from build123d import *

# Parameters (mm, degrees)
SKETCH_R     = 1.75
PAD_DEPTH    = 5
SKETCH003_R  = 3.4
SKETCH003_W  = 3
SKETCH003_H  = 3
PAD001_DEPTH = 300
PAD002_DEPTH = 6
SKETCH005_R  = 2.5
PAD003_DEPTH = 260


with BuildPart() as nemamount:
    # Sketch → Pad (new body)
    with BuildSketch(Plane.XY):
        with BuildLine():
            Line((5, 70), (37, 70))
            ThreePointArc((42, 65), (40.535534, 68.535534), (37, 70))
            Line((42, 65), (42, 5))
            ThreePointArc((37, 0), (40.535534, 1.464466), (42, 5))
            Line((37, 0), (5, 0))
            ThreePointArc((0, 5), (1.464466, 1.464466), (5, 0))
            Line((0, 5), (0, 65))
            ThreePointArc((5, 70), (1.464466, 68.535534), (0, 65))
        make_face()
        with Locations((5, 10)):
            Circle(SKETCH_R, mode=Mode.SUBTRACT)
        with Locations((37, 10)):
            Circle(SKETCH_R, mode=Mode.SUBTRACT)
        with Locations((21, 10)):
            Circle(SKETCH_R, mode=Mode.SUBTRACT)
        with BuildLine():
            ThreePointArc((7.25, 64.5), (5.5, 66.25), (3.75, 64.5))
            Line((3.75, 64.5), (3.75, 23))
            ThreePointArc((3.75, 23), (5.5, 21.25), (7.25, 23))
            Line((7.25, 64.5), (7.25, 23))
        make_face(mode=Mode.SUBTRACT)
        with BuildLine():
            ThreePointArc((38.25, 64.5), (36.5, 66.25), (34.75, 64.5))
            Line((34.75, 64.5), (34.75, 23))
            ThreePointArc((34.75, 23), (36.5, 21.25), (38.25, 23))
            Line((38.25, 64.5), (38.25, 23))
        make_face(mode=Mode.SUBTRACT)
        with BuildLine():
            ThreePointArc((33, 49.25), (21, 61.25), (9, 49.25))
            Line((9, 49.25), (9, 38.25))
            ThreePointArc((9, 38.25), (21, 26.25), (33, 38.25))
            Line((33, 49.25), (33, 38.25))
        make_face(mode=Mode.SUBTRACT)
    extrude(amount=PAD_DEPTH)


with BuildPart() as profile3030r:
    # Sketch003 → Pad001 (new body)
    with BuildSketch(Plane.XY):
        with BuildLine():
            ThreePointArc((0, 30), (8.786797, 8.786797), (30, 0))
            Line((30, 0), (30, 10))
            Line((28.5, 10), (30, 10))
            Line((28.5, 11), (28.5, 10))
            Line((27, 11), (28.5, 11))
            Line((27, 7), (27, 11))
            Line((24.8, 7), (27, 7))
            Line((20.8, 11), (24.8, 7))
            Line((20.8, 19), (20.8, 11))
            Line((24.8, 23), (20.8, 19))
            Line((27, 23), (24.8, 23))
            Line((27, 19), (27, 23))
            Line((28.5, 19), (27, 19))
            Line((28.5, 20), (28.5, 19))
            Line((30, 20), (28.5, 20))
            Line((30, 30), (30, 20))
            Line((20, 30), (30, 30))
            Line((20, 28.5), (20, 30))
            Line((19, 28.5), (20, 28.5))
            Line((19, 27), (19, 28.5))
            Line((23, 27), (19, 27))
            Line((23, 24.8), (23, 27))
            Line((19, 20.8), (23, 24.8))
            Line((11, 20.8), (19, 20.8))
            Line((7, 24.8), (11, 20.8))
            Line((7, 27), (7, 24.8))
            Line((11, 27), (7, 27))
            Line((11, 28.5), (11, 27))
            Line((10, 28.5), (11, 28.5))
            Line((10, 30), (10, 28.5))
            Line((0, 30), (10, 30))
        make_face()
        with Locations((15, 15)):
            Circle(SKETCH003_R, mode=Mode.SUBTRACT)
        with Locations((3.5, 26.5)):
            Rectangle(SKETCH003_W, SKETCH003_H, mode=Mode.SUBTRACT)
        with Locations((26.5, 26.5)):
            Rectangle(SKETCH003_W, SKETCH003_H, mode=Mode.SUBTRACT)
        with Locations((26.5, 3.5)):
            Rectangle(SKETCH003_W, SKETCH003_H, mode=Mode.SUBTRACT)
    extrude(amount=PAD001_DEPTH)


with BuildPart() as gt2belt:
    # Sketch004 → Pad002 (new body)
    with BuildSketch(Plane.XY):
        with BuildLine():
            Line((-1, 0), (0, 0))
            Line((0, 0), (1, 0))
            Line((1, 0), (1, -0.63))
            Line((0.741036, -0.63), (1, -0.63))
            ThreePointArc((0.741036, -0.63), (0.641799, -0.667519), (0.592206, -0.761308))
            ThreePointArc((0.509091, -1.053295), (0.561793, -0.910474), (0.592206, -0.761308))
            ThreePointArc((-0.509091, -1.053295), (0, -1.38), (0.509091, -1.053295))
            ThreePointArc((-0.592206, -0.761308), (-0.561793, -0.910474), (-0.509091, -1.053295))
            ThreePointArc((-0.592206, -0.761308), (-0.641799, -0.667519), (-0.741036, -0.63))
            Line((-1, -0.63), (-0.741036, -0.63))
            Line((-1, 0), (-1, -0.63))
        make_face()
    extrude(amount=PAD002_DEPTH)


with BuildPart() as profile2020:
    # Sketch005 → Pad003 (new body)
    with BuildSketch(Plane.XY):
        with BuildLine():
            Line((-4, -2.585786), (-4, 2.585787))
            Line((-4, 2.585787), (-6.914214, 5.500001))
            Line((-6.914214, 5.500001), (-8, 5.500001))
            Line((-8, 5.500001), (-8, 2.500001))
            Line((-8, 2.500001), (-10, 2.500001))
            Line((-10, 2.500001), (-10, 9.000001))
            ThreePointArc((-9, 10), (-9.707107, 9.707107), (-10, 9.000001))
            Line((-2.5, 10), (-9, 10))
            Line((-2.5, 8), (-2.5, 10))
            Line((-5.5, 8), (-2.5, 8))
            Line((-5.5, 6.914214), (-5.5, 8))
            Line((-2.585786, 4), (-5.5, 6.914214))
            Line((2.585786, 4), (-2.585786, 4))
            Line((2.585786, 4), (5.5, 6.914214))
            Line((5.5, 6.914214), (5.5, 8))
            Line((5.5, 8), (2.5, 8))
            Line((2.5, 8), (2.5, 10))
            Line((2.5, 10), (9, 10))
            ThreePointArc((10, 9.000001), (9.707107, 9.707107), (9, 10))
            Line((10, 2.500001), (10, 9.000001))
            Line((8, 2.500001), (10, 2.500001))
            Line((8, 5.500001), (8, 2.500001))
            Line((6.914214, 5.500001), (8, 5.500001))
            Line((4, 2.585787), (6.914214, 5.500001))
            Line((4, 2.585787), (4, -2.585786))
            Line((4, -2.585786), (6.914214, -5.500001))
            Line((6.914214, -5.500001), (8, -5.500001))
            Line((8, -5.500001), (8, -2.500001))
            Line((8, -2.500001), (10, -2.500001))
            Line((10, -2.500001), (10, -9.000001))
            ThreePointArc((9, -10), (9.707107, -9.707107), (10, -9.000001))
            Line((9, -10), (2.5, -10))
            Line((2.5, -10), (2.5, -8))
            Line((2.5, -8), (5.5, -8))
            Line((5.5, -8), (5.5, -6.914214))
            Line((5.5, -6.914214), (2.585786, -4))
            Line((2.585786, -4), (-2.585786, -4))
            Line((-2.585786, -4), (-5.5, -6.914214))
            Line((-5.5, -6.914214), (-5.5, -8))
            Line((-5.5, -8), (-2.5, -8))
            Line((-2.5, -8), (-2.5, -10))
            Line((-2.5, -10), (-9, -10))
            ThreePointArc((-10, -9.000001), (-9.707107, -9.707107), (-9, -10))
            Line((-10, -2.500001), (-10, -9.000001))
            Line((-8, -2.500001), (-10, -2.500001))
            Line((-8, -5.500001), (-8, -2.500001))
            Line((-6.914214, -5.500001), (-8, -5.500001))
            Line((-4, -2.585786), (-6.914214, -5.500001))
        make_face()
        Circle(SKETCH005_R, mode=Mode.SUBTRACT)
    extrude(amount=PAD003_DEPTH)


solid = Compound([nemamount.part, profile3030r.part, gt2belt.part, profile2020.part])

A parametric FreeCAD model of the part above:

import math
import FreeCAD as App
import Part
import Sketcher

V = App.Vector
Q = App.Units.Quantity


def add_polygon(sketch, points):
    """Adds a closed chain of lines whose ends are joined by coincident constraints."""
    first, n = sketch.GeometryCount, len(points)
    for a, b in zip(points, points[1:] + points[:1]):
        sketch.addGeometry(Part.LineSegment(App.Vector(*a, 0), App.Vector(*b, 0)), False)
    for i in range(n):
        sketch.addConstraint(Sketcher.Constraint("Coincident", first + i, 2, first + (i + 1) % n, 1))

doc = App.newDocument("Part")
body = doc.addObject("PartDesign::Body", "Body")

sketch1 = body.newObject("Sketcher::SketchObject", "Sketch")
sketch1.AttachmentSupport = (doc.getObject("XY_Plane"), [""])
sketch1.MapMode = "FlatFace"
sketch1.addGeometry([
    Part.LineSegment(V(37, 70, 0), V(5, 70, 0)),
    Part.ArcOfCircle(Part.Circle(V(5, 65, 0), V(0, 0, 1), 5), math.radians(90), math.radians(180)),
    Part.LineSegment(V(0, 65, 0), V(0, 5, 0)),
    Part.ArcOfCircle(Part.Circle(V(5, 5, 0), V(0, 0, 1), 5), math.radians(180), math.radians(270)),
    Part.LineSegment(V(5, 0, 0), V(37, 0, 0)),
    Part.ArcOfCircle(Part.Circle(V(37, 5, 0), V(0, 0, 1), 5), math.radians(-90), math.radians(0)),
    Part.LineSegment(V(42, 5, 0), V(42, 65, 0)),
    Part.ArcOfCircle(Part.Circle(V(37, 65, 0), V(0, 0, 1), 5), math.radians(0), math.radians(90)),
    Part.Circle(V(37, 10, 0), V(0, 0, 1), 1.8),
    Part.Circle(V(21, 10, 0), V(0, 0, 1), 1.8),
    Part.Circle(V(5, 10, 0), V(0, 0, 1), 1.8),
    Part.LineSegment(V(38.2, 64.5, 0), V(38.2, 23, 0)),
    Part.ArcOfCircle(Part.Circle(V(36.5, 23, 0), V(0, 0, 1), 1.8), math.radians(180), math.radians(360)),
    Part.LineSegment(V(34.8, 23, 0), V(34.8, 64.5, 0)),
    Part.ArcOfCircle(Part.Circle(V(36.5, 64.5, 0), V(0, 0, 1), 1.8), math.radians(0), math.radians(180)),
    Part.LineSegment(V(33, 49.2, 0), V(33, 38.2, 0)),
    Part.ArcOfCircle(Part.Circle(V(21, 38.2, 0), V(0, 0, 1), 12), math.radians(180), math.radians(360)),
    Part.LineSegment(V(9, 38.2, 0), V(9, 49.2, 0)),
    Part.ArcOfCircle(Part.Circle(V(21, 49.2, 0), V(0, 0, 1), 12), math.radians(0), math.radians(180)),
    Part.LineSegment(V(7.2, 64.5, 0), V(7.2, 23, 0)),
    Part.ArcOfCircle(Part.Circle(V(5.5, 23, 0), V(0, 0, 1), 1.8), math.radians(180), math.radians(360)),
    Part.LineSegment(V(3.8, 23, 0), V(3.8, 64.5, 0)),
    Part.ArcOfCircle(Part.Circle(V(5.5, 64.5, 0), V(0, 0, 1), 1.8), math.radians(0), math.radians(180)),
], False)
sketch1.addConstraint([
    Sketcher.Constraint("Tangent", 0, 2, 1, 1),
    Sketcher.Constraint("Tangent", 1, 2, 2, 1),
    Sketcher.Constraint("Tangent", 2, 2, 3, 1),
    Sketcher.Constraint("Tangent", 3, 2, 4, 1),
    Sketcher.Constraint("Tangent", 4, 2, 5, 1),
    Sketcher.Constraint("Tangent", 5, 2, 6, 1),
    Sketcher.Constraint("Tangent", 6, 2, 7, 1),
    Sketcher.Constraint("Tangent", 7, 2, 0, 1),
    Sketcher.Constraint("Tangent", 11, 2, 12, 2),
    Sketcher.Constraint("Tangent", 12, 1, 13, 1),
    Sketcher.Constraint("Tangent", 13, 2, 14, 2),
    Sketcher.Constraint("Tangent", 14, 1, 11, 1),
    Sketcher.Constraint("Tangent", 15, 2, 16, 2),
    Sketcher.Constraint("Tangent", 16, 1, 17, 1),
    Sketcher.Constraint("Tangent", 17, 2, 18, 2),
    Sketcher.Constraint("Tangent", 18, 1, 15, 1),
    Sketcher.Constraint("Tangent", 19, 2, 20, 2),
    Sketcher.Constraint("Tangent", 20, 1, 21, 1),
    Sketcher.Constraint("Tangent", 21, 2, 22, 2),
    Sketcher.Constraint("Tangent", 22, 1, 19, 1),
    Sketcher.Constraint("Horizontal", 0),
    Sketcher.Constraint("Vertical", 2),
    Sketcher.Constraint("Horizontal", 4),
    Sketcher.Constraint("Vertical", 6),
    Sketcher.Constraint("Vertical", 11),
    Sketcher.Constraint("Vertical", 13),
    Sketcher.Constraint("Vertical", 15),
    Sketcher.Constraint("Vertical", 17),
    Sketcher.Constraint("Vertical", 19),
    Sketcher.Constraint("Vertical", 21),
    Sketcher.Constraint("Equal", 1, 3),
    Sketcher.Constraint("Equal", 3, 5),
    Sketcher.Constraint("Equal", 5, 7),
    Sketcher.Constraint("Equal", 8, 9),
    Sketcher.Constraint("Equal", 9, 10),
    Sketcher.Constraint("Equal", 10, 12),
    Sketcher.Constraint("Equal", 14, 20),
    Sketcher.Constraint("PointOnObject", 1, 2, -2),
    Sketcher.Constraint("PointOnObject", 3, 2, -1),
    Sketcher.Constraint("Horizontal", 8, 3, 9, 3),
    Sketcher.Constraint("Horizontal", 9, 3, 10, 3),
    Sketcher.Constraint("Horizontal", 12, 3, 20, 3),
    Sketcher.Constraint("Horizontal", 14, 3, 22, 3),
    Sketcher.Constraint("Vertical", 7, 3, 8, 3),
    Sketcher.Constraint("Vertical", 3, 3, 10, 3),
    Sketcher.Constraint("Vertical", 9, 3, 16, 3),
    Sketcher.Constraint("Radius", 1, Q("5 mm")),
    Sketcher.Constraint("Radius", 16, Q("12 mm")),
    Sketcher.Constraint("Diameter", 8, Q("3.5 mm")),
    Sketcher.Constraint("DistanceX", 0, 2, 0, 1, Q("32 mm")),
    Sketcher.Constraint("DistanceY", 2, 2, 2, 1, Q("60 mm")),
    Sketcher.Constraint("DistanceY", 15, 2, 15, 1, Q("11 mm")),
    Sketcher.Constraint("DistanceY", 11, 2, 11, 1, Q("41.5 mm")),
    Sketcher.Constraint("DistanceY", -1, 1, 8, 3, Q("10 mm")),
    Sketcher.Constraint("DistanceX", -1, 1, 9, 3, Q("21 mm")),
    Sketcher.Constraint("DistanceY", -1, 1, 12, 3, Q("23 mm")),
    Sketcher.Constraint("DistanceX", 22, 3, 14, 3, Q("31 mm")),
    Sketcher.Constraint("DistanceX", -1, 1, 12, 3, Q("36.5 mm")),
    Sketcher.Constraint("DistanceY", -1, 1, 16, 3, Q("38.25 mm")),
])
pad1 = body.newObject("PartDesign::Pad", "Pad")
pad1.Profile = sketch1
pad1.Length = 5
body2 = doc.addObject("PartDesign::Body", "Body001")

sketch2 = body2.newObject("Sketcher::SketchObject", "Sketch001")
sketch2.AttachmentSupport = (doc.getObject("XY_Plane001"), [""])
sketch2.MapMode = "FlatFace"
sketch2.addGeometry(Part.ArcOfCircle(Part.Circle(V(30, 30, 0), V(0, 0, 1), 30), math.radians(-180), math.radians(-90)), False)
sketch2.addGeometry(Part.LineSegment(V(30, 0, 0), V(30, 10, 0)), False)
sketch2.addGeometry(Part.LineSegment(V(30, 10, 0), V(28.5, 10, 0)), False)
sketch2.addGeometry(Part.LineSegment(V(28.5, 10, 0), V(28.5, 11, 0)), False)
sketch2.addGeometry(Part.LineSegment(V(28.5, 11, 0), V(27, 11, 0)), False)
sketch2.addGeometry(Part.LineSegment(V(27, 11, 0), V(27, 7, 0)), False)
sketch2.addGeometry(Part.LineSegment(V(27, 7, 0), V(24.8, 7, 0)), False)
sketch2.addGeometry(Part.LineSegment(V(24.8, 7, 0), V(20.8, 11, 0)), False)
sketch2.addGeometry(Part.LineSegment(V(20.8, 11, 0), V(20.8, 19, 0)), False)
sketch2.addGeometry(Part.LineSegment(V(20.8, 19, 0), V(24.8, 23, 0)), False)
sketch2.addGeometry(Part.LineSegment(V(24.8, 23, 0), V(27, 23, 0)), False)
sketch2.addGeometry(Part.LineSegment(V(27, 23, 0), V(27, 19, 0)), False)
sketch2.addGeometry(Part.LineSegment(V(27, 19, 0), V(28.5, 19, 0)), False)
sketch2.addGeometry(Part.LineSegment(V(28.5, 19, 0), V(28.5, 20, 0)), False)
sketch2.addGeometry(Part.LineSegment(V(28.5, 20, 0), V(30, 20, 0)), False)
sketch2.addGeometry(Part.LineSegment(V(30, 20, 0), V(30, 30, 0)), False)
sketch2.addGeometry(Part.LineSegment(V(30, 30, 0), V(20, 30, 0)), False)
sketch2.addGeometry(Part.LineSegment(V(20, 30, 0), V(20, 28.5, 0)), False)
sketch2.addGeometry(Part.LineSegment(V(20, 28.5, 0), V(19, 28.5, 0)), False)
sketch2.addGeometry(Part.LineSegment(V(19, 28.5, 0), V(19, 27, 0)), False)
sketch2.addGeometry(Part.LineSegment(V(19, 27, 0), V(23, 27, 0)), False)
sketch2.addGeometry(Part.LineSegment(V(23, 27, 0), V(23, 24.8, 0)), False)
sketch2.addGeometry(Part.LineSegment(V(23, 24.8, 0), V(19, 20.8, 0)), False)
sketch2.addGeometry(Part.LineSegment(V(19, 20.8, 0), V(11, 20.8, 0)), False)
sketch2.addGeometry(Part.LineSegment(V(11, 20.8, 0), V(7, 24.8, 0)), False)
sketch2.addGeometry(Part.LineSegment(V(7, 24.8, 0), V(7, 27, 0)), False)
sketch2.addGeometry(Part.LineSegment(V(7, 27, 0), V(11, 27, 0)), False)
sketch2.addGeometry(Part.LineSegment(V(11, 27, 0), V(11, 28.5, 0)), False)
sketch2.addGeometry(Part.LineSegment(V(11, 28.5, 0), V(10, 28.5, 0)), False)
sketch2.addGeometry(Part.LineSegment(V(10, 28.5, 0), V(10, 30, 0)), False)
sketch2.addGeometry(Part.LineSegment(V(10, 30, 0), V(0, 30, 0)), False)
add_polygon(sketch2, [(28, 2), (25, 2), (25, 5), (28, 5)])
add_polygon(sketch2, [(5, 25), (2, 25), (2, 28), (5, 28)])
sketch2.addGeometry(Part.Circle(V(15, 15, 0), V(0, 0, 1), 3.4), False)
add_polygon(sketch2, [(28, 25), (25, 25), (25, 28), (28, 28)])
sketch2.addConstraint([
    Sketcher.Constraint("Coincident", 0, 2, 1, 1),
    Sketcher.Constraint("Coincident", 1, 2, 2, 1),
    Sketcher.Constraint("Coincident", 2, 2, 3, 1),
    Sketcher.Constraint("Coincident", 3, 2, 4, 1),
    Sketcher.Constraint("Coincident", 4, 2, 5, 1),
    Sketcher.Constraint("Coincident", 5, 2, 6, 1),
    Sketcher.Constraint("Coincident", 6, 2, 7, 1),
    Sketcher.Constraint("Coincident", 7, 2, 8, 1),
    Sketcher.Constraint("Coincident", 8, 2, 9, 1),
    Sketcher.Constraint("Coincident", 9, 2, 10, 1),
    Sketcher.Constraint("Coincident", 10, 2, 11, 1),
    Sketcher.Constraint("Coincident", 11, 2, 12, 1),
    Sketcher.Constraint("Coincident", 12, 2, 13, 1),
    Sketcher.Constraint("Coincident", 13, 2, 14, 1),
    Sketcher.Constraint("Coincident", 14, 2, 15, 1),
    Sketcher.Constraint("Coincident", 15, 2, 16, 1),
    Sketcher.Constraint("Coincident", 16, 2, 17, 1),
    Sketcher.Constraint("Coincident", 17, 2, 18, 1),
    Sketcher.Constraint("Coincident", 18, 2, 19, 1),
    Sketcher.Constraint("Coincident", 19, 2, 20, 1),
    Sketcher.Constraint("Coincident", 20, 2, 21, 1),
    Sketcher.Constraint("Coincident", 21, 2, 22, 1),
    Sketcher.Constraint("Coincident", 22, 2, 23, 1),
    Sketcher.Constraint("Coincident", 23, 2, 24, 1),
    Sketcher.Constraint("Coincident", 24, 2, 25, 1),
    Sketcher.Constraint("Coincident", 25, 2, 26, 1),
    Sketcher.Constraint("Coincident", 26, 2, 27, 1),
    Sketcher.Constraint("Coincident", 27, 2, 28, 1),
    Sketcher.Constraint("Coincident", 28, 2, 29, 1),
    Sketcher.Constraint("Coincident", 29, 2, 30, 1),
    Sketcher.Constraint("Coincident", 30, 2, 0, 1),
    Sketcher.Constraint("Vertical", 1),
    Sketcher.Constraint("Horizontal", 2),
    Sketcher.Constraint("Vertical", 3),
    Sketcher.Constraint("Horizontal", 4),
    Sketcher.Constraint("Vertical", 5),
    Sketcher.Constraint("Horizontal", 6),
    Sketcher.Constraint("Vertical", 8),
    Sketcher.Constraint("Horizontal", 10),
    Sketcher.Constraint("Vertical", 11),
    Sketcher.Constraint("Horizontal", 12),
    Sketcher.Constraint("Vertical", 13),
    Sketcher.Constraint("Horizontal", 14),
    Sketcher.Constraint("Vertical", 15),
    Sketcher.Constraint("Horizontal", 16),
    Sketcher.Constraint("Vertical", 17),
    Sketcher.Constraint("Horizontal", 18),
    Sketcher.Constraint("Vertical", 19),
    Sketcher.Constraint("Horizontal", 20),
    Sketcher.Constraint("Vertical", 21),
    Sketcher.Constraint("Horizontal", 23),
    Sketcher.Constraint("Vertical", 25),
    Sketcher.Constraint("Horizontal", 26),
    Sketcher.Constraint("Vertical", 27),
    Sketcher.Constraint("Horizontal", 28),
    Sketcher.Constraint("Vertical", 29),
    Sketcher.Constraint("Horizontal", 30),
    Sketcher.Constraint("Horizontal", 31),
    Sketcher.Constraint("Vertical", 32),
    Sketcher.Constraint("Horizontal", 33),
    Sketcher.Constraint("Vertical", 34),
    Sketcher.Constraint("Horizontal", 35),
    Sketcher.Constraint("Vertical", 36),
    Sketcher.Constraint("Horizontal", 37),
    Sketcher.Constraint("Vertical", 38),
    Sketcher.Constraint("Horizontal", 40),
    Sketcher.Constraint("Vertical", 41),
    Sketcher.Constraint("Horizontal", 42),
    Sketcher.Constraint("Vertical", 43),
    Sketcher.Constraint("Coincident", 15, 2, 0, 3),
    Sketcher.Constraint("PointOnObject", 0, 2, -1),
    Sketcher.Constraint("PointOnObject", 30, 2, -2),
    Sketcher.Constraint("Perpendicular", 7, 9),
    Sketcher.Constraint("Parallel", 9, 22),
    Sketcher.Constraint("Perpendicular", 22, 24),
    Sketcher.Constraint("Horizontal", 4, 2, 7, 2),
    Sketcher.Constraint("Horizontal", 8, 2, 11, 2),
    Sketcher.Constraint("Horizontal", 21, 2, 24, 2),
    Sketcher.Constraint("Horizontal", 20, 2, 25, 2),
    Sketcher.Constraint("Horizontal", 18, 2, 27, 2),
    Sketcher.Constraint("Horizontal", 16, 2, 29, 2),
    Sketcher.Constraint("Horizontal", 38, 2, 40, 2),
    Sketcher.Constraint("Horizontal", 37, 2, 41, 2),
    Sketcher.Constraint("Vertical", 6, 2, 9, 2),
    Sketcher.Constraint("Vertical", 5, 2, 10, 2),
    Sketcher.Constraint("Vertical", 3, 2, 12, 2),
    Sketcher.Constraint("Vertical", 1, 2, 14, 2),
    Sketcher.Constraint("Vertical", 19, 2, 22, 2),
    Sketcher.Constraint("Vertical", 23, 2, 26, 2),
    Sketcher.Constraint("Vertical", 32, 2, 40, 2),
    Sketcher.Constraint("Vertical", 34, 2, 42, 2),
    Sketcher.Constraint("Equal", 2, 4),
    Sketcher.Constraint("Equal", 20, 26),
    Sketcher.Constraint("Equal", 18, 28),
    Sketcher.Constraint("Equal", 16, 30),
    Sketcher.Constraint("Equal", 33, 35),
    Sketcher.Constraint("Equal", 30, 1),
    Sketcher.Constraint("Equal", 28, 3),
    Sketcher.Constraint("Equal", 26, 5),
    Sketcher.Constraint("Equal", 23, 8),
    Sketcher.Constraint("Equal", 3, 13),
    Sketcher.Constraint("Equal", 14, 17),
    Sketcher.Constraint("Equal", 17, 19),
    Sketcher.Constraint("Equal", 10, 21),
    Sketcher.Constraint("Equal", 42, 32),
    Sketcher.Constraint("Equal", 34, 36),
    Sketcher.Constraint("Radius", 0, Q("30.000001 mm")),
    Sketcher.Constraint("Diameter", 39, Q("6.8 mm")),
    Sketcher.Constraint("DistanceX", 16, 2, 16, 1, Q("10 mm")),
    Sketcher.Constraint("DistanceX", 18, 2, 18, 1, Q("1 mm")),
    Sketcher.Constraint("DistanceX", 20, 1, 20, 2, Q("4 mm")),
    Sketcher.Constraint("DistanceX", 31, 2, 31, 1, Q("3 mm")),
    Sketcher.Constraint("DistanceX", 2, 2, 2, 1, Q("1.5 mm")),
    Sketcher.Constraint("DistanceX", 6, 2, 6, 1, Q("2.2 mm")),
    Sketcher.Constraint("DistanceX", -1, 1, 39, 3, Q("15 mm")),
    Sketcher.Constraint("DistanceY", -1, 1, 39, 3, Q("15 mm")),
    Sketcher.Constraint("DistanceX", -1, 1, 31, 2, Q("25 mm")),
    Sketcher.Constraint("DistanceY", -1, 1, 31, 2, Q("2 mm")),
    Sketcher.Constraint("DistanceX", -1, 1, 35, 2, Q("2 mm")),
    Sketcher.Constraint("DistanceY", -1, 1, 35, 2, Q("25 mm")),
])
pad2 = body2.newObject("PartDesign::Pad", "Pad001")
pad2.Profile = sketch2
pad2.Length = 300
body3 = doc.addObject("PartDesign::Body", "Body002")

sketch3 = body3.newObject("Sketcher::SketchObject", "Sketch002")
sketch3.AttachmentSupport = (doc.getObject("XY_Plane002"), [""])
sketch3.MapMode = "FlatFace"
sketch3.addGeometry([
    Part.LineSegment(V(1, 0, 0), V(-1, 0, 0)),
    Part.LineSegment(V(-1, 0, 0), V(-1, -0.63, 0)),
    Part.LineSegment(V(-1, -0.63, 0), V(-0.74, -0.63, 0)),
    Part.ArcOfCircle(Part.Circle(V(-0.74, -0.78, 0), V(0, 0, 1), 0.15), math.radians(7), math.radians(90)),
    Part.ArcOfCircle(Part.Circle(V(0.4, -0.64, 0), V(0, 0, 1), 1), math.radians(-172.84), math.radians(-155.38)),
    Part.ArcOfCircle(Part.Circle(V(0, -0.82, 0), V(0, 0, 1), 0.56), math.radians(-155), math.radians(-25)),
    Part.ArcOfCircle(Part.Circle(V(-0.4, -0.64, 0), V(0, 0, 1), 1), math.radians(-24.62), math.radians(-7.16)),
    Part.ArcOfCircle(Part.Circle(V(0.74, -0.78, 0), V(0, 0, 1), 0.15), math.radians(90), math.radians(173)),
    Part.LineSegment(V(0.74, -0.63, 0), V(1, -0.63, 0)),
    Part.LineSegment(V(1, -0.63, 0), V(1, 0, 0)),
], False)
sketch3.addConstraint([
    Sketcher.Constraint("Coincident", 0, 2, 1, 1),
    Sketcher.Constraint("Coincident", 1, 2, 2, 1),
    Sketcher.Constraint("Tangent", 2, 2, 3, 2),
    Sketcher.Constraint("Coincident", 3, 1, 4, 1),
    Sketcher.Constraint("Coincident", 4, 2, 5, 1),
    Sketcher.Constraint("Coincident", 5, 2, 6, 1),
    Sketcher.Constraint("Coincident", 6, 2, 7, 2),
    Sketcher.Constraint("Tangent", 7, 1, 8, 1),
    Sketcher.Constraint("Coincident", 8, 2, 9, 1),
    Sketcher.Constraint("Coincident", 9, 2, 0, 1),
    Sketcher.Constraint("Horizontal", 0),
    Sketcher.Constraint("Vertical", 1),
    Sketcher.Constraint("Horizontal", 2),
    Sketcher.Constraint("Horizontal", 8),
    Sketcher.Constraint("Vertical", 9),
    Sketcher.Constraint("Equal", 4, 6),
    Sketcher.Constraint("Equal", 3, 7),
    Sketcher.Constraint("Symmetric", 0, 2, 9, 2, -1, 1),
    Sketcher.Constraint("Symmetric", 4, 3, 6, 3, -2),
    Sketcher.Constraint("Horizontal", 3, 3, 7, 3),
    Sketcher.Constraint("Horizontal", 4, 2, 5, 2),
    Sketcher.Constraint("Horizontal", 3, 1, 6, 2),
    Sketcher.Constraint("DistanceX", 0, 2, 0, 1, Q("2 mm")),
    Sketcher.Constraint("Radius", 3, Q("0.149999 mm")),
    Sketcher.Constraint("Radius", 5, Q("0.56 mm")),
    Sketcher.Constraint("DistanceY", 1, 2, 1, 1, Q("0.63 mm")),
    Sketcher.Constraint("DistanceY", 5, 3, -1, 1, Q("0.82 mm")),
    Sketcher.Constraint("Radius", 4, Q("1.000037 mm")),
    Sketcher.Constraint("DistanceX", 3, 3, 6, 3, Q("0.341 mm")),
    Sketcher.Constraint("DistanceX", 4, 2, -1, 1, Q("0.509091 mm")),
    Sketcher.Constraint("DistanceX", 3, 3, 3, 1, Q("0.14883 mm")),
])
pad3 = body3.newObject("PartDesign::Pad", "Pad002")
pad3.Profile = sketch3
pad3.Length = 6
body4 = doc.addObject("PartDesign::Body", "Body003")

sketch4 = body4.newObject("Sketcher::SketchObject", "Sketch003")
sketch4.AttachmentSupport = (doc.getObject("XY_Plane003"), [""])
sketch4.MapMode = "FlatFace"
sketch4.addGeometry([
    Part.LineSegment(V(-4, 2.6, 0), V(-4, -2.6, 0)),
    Part.LineSegment(V(-4, -2.6, 0), V(-6.9, -5.5, 0)),
    Part.LineSegment(V(-6.9, -5.5, 0), V(-8, -5.5, 0)),
    Part.LineSegment(V(-8, -5.5, 0), V(-8, -2.5, 0)),
    Part.LineSegment(V(-8, -2.5, 0), V(-10, -2.5, 0)),
    Part.LineSegment(V(-10, -2.5, 0), V(-10, -9, 0)),
    Part.ArcOfCircle(Part.Circle(V(-9, -9, 0), V(0, 0, 1), 1), math.radians(-180), math.radians(-90)),
    Part.LineSegment(V(-9, -10, 0), V(-2.5, -10, 0)),
    Part.LineSegment(V(-2.5, -10, 0), V(-2.5, -8, 0)),
    Part.LineSegment(V(-2.5, -8, 0), V(-5.5, -8, 0)),
    Part.LineSegment(V(-5.5, -8, 0), V(-5.5, -6.9, 0)),
    Part.LineSegment(V(-5.5, -6.9, 0), V(-2.6, -4, 0)),
    Part.LineSegment(V(-2.6, -4, 0), V(2.6, -4, 0)),
    Part.LineSegment(V(2.6, -4, 0), V(5.5, -6.9, 0)),
    Part.LineSegment(V(5.5, -6.9, 0), V(5.5, -8, 0)),
    Part.LineSegment(V(5.5, -8, 0), V(2.5, -8, 0)),
    Part.LineSegment(V(2.5, -8, 0), V(2.5, -10, 0)),
    Part.LineSegment(V(2.5, -10, 0), V(9, -10, 0)),
    Part.ArcOfCircle(Part.Circle(V(9, -9, 0), V(0, 0, 1), 1), math.radians(-90), math.radians(0)),
    Part.LineSegment(V(10, -9, 0), V(10, -2.5, 0)),
    Part.LineSegment(V(10, -2.5, 0), V(8, -2.5, 0)),
    Part.LineSegment(V(8, -2.5, 0), V(8, -5.5, 0)),
    Part.LineSegment(V(8, -5.5, 0), V(6.9, -5.5, 0)),
    Part.LineSegment(V(6.9, -5.5, 0), V(4, -2.6, 0)),
    Part.LineSegment(V(4, -2.6, 0), V(4, 2.6, 0)),
    Part.LineSegment(V(4, 2.6, 0), V(6.9, 5.5, 0)),
    Part.LineSegment(V(6.9, 5.5, 0), V(8, 5.5, 0)),
    Part.LineSegment(V(8, 5.5, 0), V(8, 2.5, 0)),
    Part.LineSegment(V(8, 2.5, 0), V(10, 2.5, 0)),
    Part.LineSegment(V(10, 2.5, 0), V(10, 9, 0)),
    Part.ArcOfCircle(Part.Circle(V(9, 9, 0), V(0, 0, 1), 1), math.radians(0), math.radians(90)),
    Part.LineSegment(V(9, 10, 0), V(2.5, 10, 0)),
    Part.LineSegment(V(2.5, 10, 0), V(2.5, 8, 0)),
    Part.LineSegment(V(2.5, 8, 0), V(5.5, 8, 0)),
    Part.LineSegment(V(5.5, 8, 0), V(5.5, 6.9, 0)),
    Part.LineSegment(V(5.5, 6.9, 0), V(2.6, 4, 0)),
    Part.LineSegment(V(2.6, 4, 0), V(-2.6, 4, 0)),
    Part.LineSegment(V(-2.6, 4, 0), V(-5.5, 6.9, 0)),
    Part.LineSegment(V(-5.5, 6.9, 0), V(-5.5, 8, 0)),
    Part.LineSegment(V(-5.5, 8, 0), V(-2.5, 8, 0)),
    Part.LineSegment(V(-2.5, 8, 0), V(-2.5, 10, 0)),
    Part.LineSegment(V(-2.5, 10, 0), V(-9, 10, 0)),
    Part.ArcOfCircle(Part.Circle(V(-9, 9, 0), V(0, 0, 1), 1), math.radians(90), math.radians(180)),
    Part.LineSegment(V(-10, 9, 0), V(-10, 2.5, 0)),
    Part.LineSegment(V(-10, 2.5, 0), V(-8, 2.5, 0)),
    Part.LineSegment(V(-8, 2.5, 0), V(-8, 5.5, 0)),
    Part.LineSegment(V(-8, 5.5, 0), V(-6.9, 5.5, 0)),
    Part.LineSegment(V(-6.9, 5.5, 0), V(-4, 2.6, 0)),
    Part.Circle(V(0, 0, 0), V(0, 0, 1), 2.5),
], False)
sketch4.addConstraint([
    Sketcher.Constraint("Coincident", 0, 2, 1, 1),
    Sketcher.Constraint("Coincident", 1, 2, 2, 1),
    Sketcher.Constraint("Coincident", 2, 2, 3, 1),
    Sketcher.Constraint("Coincident", 3, 2, 4, 1),
    Sketcher.Constraint("Coincident", 4, 2, 5, 1),
    Sketcher.Constraint("Tangent", 5, 2, 6, 1),
    Sketcher.Constraint("Tangent", 6, 2, 7, 1),
    Sketcher.Constraint("Coincident", 7, 2, 8, 1),
    Sketcher.Constraint("Coincident", 8, 2, 9, 1),
    Sketcher.Constraint("Coincident", 9, 2, 10, 1),
    Sketcher.Constraint("Coincident", 10, 2, 11, 1),
    Sketcher.Constraint("Coincident", 11, 2, 12, 1),
    Sketcher.Constraint("Coincident", 12, 2, 13, 1),
    Sketcher.Constraint("Coincident", 13, 2, 14, 1),
    Sketcher.Constraint("Coincident", 14, 2, 15, 1),
    Sketcher.Constraint("Coincident", 15, 2, 16, 1),
    Sketcher.Constraint("Coincident", 16, 2, 17, 1),
    Sketcher.Constraint("Tangent", 17, 2, 18, 1),
    Sketcher.Constraint("Tangent", 18, 2, 19, 1),
    Sketcher.Constraint("Coincident", 19, 2, 20, 1),
    Sketcher.Constraint("Coincident", 20, 2, 21, 1),
    Sketcher.Constraint("Coincident", 21, 2, 22, 1),
    Sketcher.Constraint("Coincident", 22, 2, 23, 1),
    Sketcher.Constraint("Coincident", 23, 2, 24, 1),
    Sketcher.Constraint("Coincident", 24, 2, 25, 1),
    Sketcher.Constraint("Coincident", 25, 2, 26, 1),
    Sketcher.Constraint("Coincident", 26, 2, 27, 1),
    Sketcher.Constraint("Coincident", 27, 2, 28, 1),
    Sketcher.Constraint("Coincident", 28, 2, 29, 1),
    Sketcher.Constraint("Tangent", 29, 2, 30, 1),
    Sketcher.Constraint("Tangent", 30, 2, 31, 1),
    Sketcher.Constraint("Coincident", 31, 2, 32, 1),
    Sketcher.Constraint("Coincident", 32, 2, 33, 1),
    Sketcher.Constraint("Coincident", 33, 2, 34, 1),
    Sketcher.Constraint("Coincident", 34, 2, 35, 1),
    Sketcher.Constraint("Coincident", 35, 2, 36, 1),
    Sketcher.Constraint("Coincident", 36, 2, 37, 1),
    Sketcher.Constraint("Coincident", 37, 2, 38, 1),
    Sketcher.Constraint("Coincident", 38, 2, 39, 1),
    Sketcher.Constraint("Coincident", 39, 2, 40, 1),
    Sketcher.Constraint("Coincident", 40, 2, 41, 1),
    Sketcher.Constraint("Tangent", 41, 2, 42, 1),
    Sketcher.Constraint("Tangent", 42, 2, 43, 1),
    Sketcher.Constraint("Coincident", 43, 2, 44, 1),
    Sketcher.Constraint("Coincident", 44, 2, 45, 1),
    Sketcher.Constraint("Coincident", 45, 2, 46, 1),
    Sketcher.Constraint("Coincident", 46, 2, 47, 1),
    Sketcher.Constraint("Coincident", 47, 2, 0, 1),
    Sketcher.Constraint("Vertical", 0),
    Sketcher.Constraint("Horizontal", 2),
    Sketcher.Constraint("Vertical", 3),
    Sketcher.Constraint("Horizontal", 4),
    Sketcher.Constraint("Vertical", 5),
    Sketcher.Constraint("Horizontal", 7),
    Sketcher.Constraint("Vertical", 8),
    Sketcher.Constraint("Horizontal", 9),
    Sketcher.Constraint("Vertical", 10),
    Sketcher.Constraint("Horizontal", 12),
    Sketcher.Constraint("Vertical", 14),
    Sketcher.Constraint("Horizontal", 15),
    Sketcher.Constraint("Vertical", 16),
    Sketcher.Constraint("Horizontal", 17),
    Sketcher.Constraint("Vertical", 19),
    Sketcher.Constraint("Horizontal", 20),
    Sketcher.Constraint("Vertical", 21),
    Sketcher.Constraint("Horizontal", 22),
    Sketcher.Constraint("Vertical", 24),
    Sketcher.Constraint("Horizontal", 26),
    Sketcher.Constraint("Vertical", 27),
    Sketcher.Constraint("Horizontal", 28),
    Sketcher.Constraint("Vertical", 29),
    Sketcher.Constraint("Horizontal", 31),
    Sketcher.Constraint("Vertical", 32),
    Sketcher.Constraint("Horizontal", 33),
    Sketcher.Constraint("Vertical", 34),
    Sketcher.Constraint("Horizontal", 36),
    Sketcher.Constraint("Vertical", 38),
    Sketcher.Constraint("Horizontal", 39),
    Sketcher.Constraint("Vertical", 40),
    Sketcher.Constraint("Horizontal", 41),
    Sketcher.Constraint("Vertical", 43),
    Sketcher.Constraint("Horizontal", 44),
    Sketcher.Constraint("Vertical", 45),
    Sketcher.Constraint("Horizontal", 46),
    Sketcher.Constraint("Coincident", 48, 3, -1, 1),
    Sketcher.Constraint("Equal", 6, 18),
    Sketcher.Constraint("Equal", 18, 30),
    Sketcher.Constraint("Equal", 30, 42),
    Sketcher.Constraint("Symmetric", 6, 3, 30, 3, -1, 1),
    Sketcher.Constraint("Symmetric", 18, 3, 42, 3, -1, 1),
    Sketcher.Constraint("Symmetric", 0, 2, 24, 2, -1, 1),
    Sketcher.Constraint("Symmetric", 1, 2, 25, 2, -1, 1),
    Sketcher.Constraint("Symmetric", 3, 2, 27, 2, -1, 1),
    Sketcher.Constraint("Symmetric", 8, 2, 32, 2, -1, 1),
    Sketcher.Constraint("Symmetric", 10, 2, 34, 2, -1, 1),
    Sketcher.Constraint("Symmetric", 11, 2, 35, 2, -1, 1),
    Sketcher.Constraint("Symmetric", 13, 2, 37, 2, -1, 1),
    Sketcher.Constraint("Symmetric", 15, 2, 39, 2, -1, 1),
    Sketcher.Constraint("Symmetric", 20, 2, 44, 2, -1, 1),
    Sketcher.Constraint("Symmetric", 22, 2, 46, 2, -1, 1),
    Sketcher.Constraint("Symmetric", 6, 3, 18, 3, -2),
    Sketcher.Constraint("Symmetric", 10, 2, 13, 2, -2),
    Sketcher.Constraint("Symmetric", 8, 2, 15, 2, -2),
    Sketcher.Constraint("Symmetric", 3, 2, 20, 2, -2),
    Sketcher.Constraint("Symmetric", 1, 2, 22, 2, -2),
    Sketcher.Constraint("Parallel", 1, 11),
    Sketcher.Constraint("Perpendicular", 11, 13),
    Sketcher.Constraint("Parallel", 13, 23),
    Sketcher.Constraint("Perpendicular", 35, 37),
    Sketcher.Constraint("Parallel", 37, 47),
    Sketcher.Constraint("Horizontal", 0, 2, 23, 2),
    Sketcher.Constraint("Equal", 36, 0),
    Sketcher.Constraint("Equal", 39, 3),
    Sketcher.Constraint("Equal", 41, 5),
    Sketcher.Constraint("Equal", 44, 8),
    Sketcher.Constraint("Equal", 46, 10),
    Sketcher.Constraint("Equal", 1, 11),
    Sketcher.Constraint("Diameter", 48, Q("5 mm")),
    Sketcher.Constraint("Radius", 6, Q("0.999999 mm")),
    Sketcher.Constraint("DistanceX", 4, 2, 4, 1, Q("2 mm")),
    Sketcher.Constraint("DistanceX", 9, 2, 9, 1, Q("3 mm")),
    Sketcher.Constraint("DistanceX", 7, 1, 7, 2, Q("6.5 mm")),
    Sketcher.Constraint("DistanceX", 6, 3, -1, 1, Q("9.000001 mm")),
    Sketcher.Constraint("DistanceX", 0, 2, -1, 1, Q("4 mm")),
    Sketcher.Constraint("Distance", 1, Q("4.121322 mm")),
])
pad4 = body4.newObject("PartDesign::Pad", "Pad003")
pad4.Profile = sketch4
pad4.Length = 260

doc.recompute()
